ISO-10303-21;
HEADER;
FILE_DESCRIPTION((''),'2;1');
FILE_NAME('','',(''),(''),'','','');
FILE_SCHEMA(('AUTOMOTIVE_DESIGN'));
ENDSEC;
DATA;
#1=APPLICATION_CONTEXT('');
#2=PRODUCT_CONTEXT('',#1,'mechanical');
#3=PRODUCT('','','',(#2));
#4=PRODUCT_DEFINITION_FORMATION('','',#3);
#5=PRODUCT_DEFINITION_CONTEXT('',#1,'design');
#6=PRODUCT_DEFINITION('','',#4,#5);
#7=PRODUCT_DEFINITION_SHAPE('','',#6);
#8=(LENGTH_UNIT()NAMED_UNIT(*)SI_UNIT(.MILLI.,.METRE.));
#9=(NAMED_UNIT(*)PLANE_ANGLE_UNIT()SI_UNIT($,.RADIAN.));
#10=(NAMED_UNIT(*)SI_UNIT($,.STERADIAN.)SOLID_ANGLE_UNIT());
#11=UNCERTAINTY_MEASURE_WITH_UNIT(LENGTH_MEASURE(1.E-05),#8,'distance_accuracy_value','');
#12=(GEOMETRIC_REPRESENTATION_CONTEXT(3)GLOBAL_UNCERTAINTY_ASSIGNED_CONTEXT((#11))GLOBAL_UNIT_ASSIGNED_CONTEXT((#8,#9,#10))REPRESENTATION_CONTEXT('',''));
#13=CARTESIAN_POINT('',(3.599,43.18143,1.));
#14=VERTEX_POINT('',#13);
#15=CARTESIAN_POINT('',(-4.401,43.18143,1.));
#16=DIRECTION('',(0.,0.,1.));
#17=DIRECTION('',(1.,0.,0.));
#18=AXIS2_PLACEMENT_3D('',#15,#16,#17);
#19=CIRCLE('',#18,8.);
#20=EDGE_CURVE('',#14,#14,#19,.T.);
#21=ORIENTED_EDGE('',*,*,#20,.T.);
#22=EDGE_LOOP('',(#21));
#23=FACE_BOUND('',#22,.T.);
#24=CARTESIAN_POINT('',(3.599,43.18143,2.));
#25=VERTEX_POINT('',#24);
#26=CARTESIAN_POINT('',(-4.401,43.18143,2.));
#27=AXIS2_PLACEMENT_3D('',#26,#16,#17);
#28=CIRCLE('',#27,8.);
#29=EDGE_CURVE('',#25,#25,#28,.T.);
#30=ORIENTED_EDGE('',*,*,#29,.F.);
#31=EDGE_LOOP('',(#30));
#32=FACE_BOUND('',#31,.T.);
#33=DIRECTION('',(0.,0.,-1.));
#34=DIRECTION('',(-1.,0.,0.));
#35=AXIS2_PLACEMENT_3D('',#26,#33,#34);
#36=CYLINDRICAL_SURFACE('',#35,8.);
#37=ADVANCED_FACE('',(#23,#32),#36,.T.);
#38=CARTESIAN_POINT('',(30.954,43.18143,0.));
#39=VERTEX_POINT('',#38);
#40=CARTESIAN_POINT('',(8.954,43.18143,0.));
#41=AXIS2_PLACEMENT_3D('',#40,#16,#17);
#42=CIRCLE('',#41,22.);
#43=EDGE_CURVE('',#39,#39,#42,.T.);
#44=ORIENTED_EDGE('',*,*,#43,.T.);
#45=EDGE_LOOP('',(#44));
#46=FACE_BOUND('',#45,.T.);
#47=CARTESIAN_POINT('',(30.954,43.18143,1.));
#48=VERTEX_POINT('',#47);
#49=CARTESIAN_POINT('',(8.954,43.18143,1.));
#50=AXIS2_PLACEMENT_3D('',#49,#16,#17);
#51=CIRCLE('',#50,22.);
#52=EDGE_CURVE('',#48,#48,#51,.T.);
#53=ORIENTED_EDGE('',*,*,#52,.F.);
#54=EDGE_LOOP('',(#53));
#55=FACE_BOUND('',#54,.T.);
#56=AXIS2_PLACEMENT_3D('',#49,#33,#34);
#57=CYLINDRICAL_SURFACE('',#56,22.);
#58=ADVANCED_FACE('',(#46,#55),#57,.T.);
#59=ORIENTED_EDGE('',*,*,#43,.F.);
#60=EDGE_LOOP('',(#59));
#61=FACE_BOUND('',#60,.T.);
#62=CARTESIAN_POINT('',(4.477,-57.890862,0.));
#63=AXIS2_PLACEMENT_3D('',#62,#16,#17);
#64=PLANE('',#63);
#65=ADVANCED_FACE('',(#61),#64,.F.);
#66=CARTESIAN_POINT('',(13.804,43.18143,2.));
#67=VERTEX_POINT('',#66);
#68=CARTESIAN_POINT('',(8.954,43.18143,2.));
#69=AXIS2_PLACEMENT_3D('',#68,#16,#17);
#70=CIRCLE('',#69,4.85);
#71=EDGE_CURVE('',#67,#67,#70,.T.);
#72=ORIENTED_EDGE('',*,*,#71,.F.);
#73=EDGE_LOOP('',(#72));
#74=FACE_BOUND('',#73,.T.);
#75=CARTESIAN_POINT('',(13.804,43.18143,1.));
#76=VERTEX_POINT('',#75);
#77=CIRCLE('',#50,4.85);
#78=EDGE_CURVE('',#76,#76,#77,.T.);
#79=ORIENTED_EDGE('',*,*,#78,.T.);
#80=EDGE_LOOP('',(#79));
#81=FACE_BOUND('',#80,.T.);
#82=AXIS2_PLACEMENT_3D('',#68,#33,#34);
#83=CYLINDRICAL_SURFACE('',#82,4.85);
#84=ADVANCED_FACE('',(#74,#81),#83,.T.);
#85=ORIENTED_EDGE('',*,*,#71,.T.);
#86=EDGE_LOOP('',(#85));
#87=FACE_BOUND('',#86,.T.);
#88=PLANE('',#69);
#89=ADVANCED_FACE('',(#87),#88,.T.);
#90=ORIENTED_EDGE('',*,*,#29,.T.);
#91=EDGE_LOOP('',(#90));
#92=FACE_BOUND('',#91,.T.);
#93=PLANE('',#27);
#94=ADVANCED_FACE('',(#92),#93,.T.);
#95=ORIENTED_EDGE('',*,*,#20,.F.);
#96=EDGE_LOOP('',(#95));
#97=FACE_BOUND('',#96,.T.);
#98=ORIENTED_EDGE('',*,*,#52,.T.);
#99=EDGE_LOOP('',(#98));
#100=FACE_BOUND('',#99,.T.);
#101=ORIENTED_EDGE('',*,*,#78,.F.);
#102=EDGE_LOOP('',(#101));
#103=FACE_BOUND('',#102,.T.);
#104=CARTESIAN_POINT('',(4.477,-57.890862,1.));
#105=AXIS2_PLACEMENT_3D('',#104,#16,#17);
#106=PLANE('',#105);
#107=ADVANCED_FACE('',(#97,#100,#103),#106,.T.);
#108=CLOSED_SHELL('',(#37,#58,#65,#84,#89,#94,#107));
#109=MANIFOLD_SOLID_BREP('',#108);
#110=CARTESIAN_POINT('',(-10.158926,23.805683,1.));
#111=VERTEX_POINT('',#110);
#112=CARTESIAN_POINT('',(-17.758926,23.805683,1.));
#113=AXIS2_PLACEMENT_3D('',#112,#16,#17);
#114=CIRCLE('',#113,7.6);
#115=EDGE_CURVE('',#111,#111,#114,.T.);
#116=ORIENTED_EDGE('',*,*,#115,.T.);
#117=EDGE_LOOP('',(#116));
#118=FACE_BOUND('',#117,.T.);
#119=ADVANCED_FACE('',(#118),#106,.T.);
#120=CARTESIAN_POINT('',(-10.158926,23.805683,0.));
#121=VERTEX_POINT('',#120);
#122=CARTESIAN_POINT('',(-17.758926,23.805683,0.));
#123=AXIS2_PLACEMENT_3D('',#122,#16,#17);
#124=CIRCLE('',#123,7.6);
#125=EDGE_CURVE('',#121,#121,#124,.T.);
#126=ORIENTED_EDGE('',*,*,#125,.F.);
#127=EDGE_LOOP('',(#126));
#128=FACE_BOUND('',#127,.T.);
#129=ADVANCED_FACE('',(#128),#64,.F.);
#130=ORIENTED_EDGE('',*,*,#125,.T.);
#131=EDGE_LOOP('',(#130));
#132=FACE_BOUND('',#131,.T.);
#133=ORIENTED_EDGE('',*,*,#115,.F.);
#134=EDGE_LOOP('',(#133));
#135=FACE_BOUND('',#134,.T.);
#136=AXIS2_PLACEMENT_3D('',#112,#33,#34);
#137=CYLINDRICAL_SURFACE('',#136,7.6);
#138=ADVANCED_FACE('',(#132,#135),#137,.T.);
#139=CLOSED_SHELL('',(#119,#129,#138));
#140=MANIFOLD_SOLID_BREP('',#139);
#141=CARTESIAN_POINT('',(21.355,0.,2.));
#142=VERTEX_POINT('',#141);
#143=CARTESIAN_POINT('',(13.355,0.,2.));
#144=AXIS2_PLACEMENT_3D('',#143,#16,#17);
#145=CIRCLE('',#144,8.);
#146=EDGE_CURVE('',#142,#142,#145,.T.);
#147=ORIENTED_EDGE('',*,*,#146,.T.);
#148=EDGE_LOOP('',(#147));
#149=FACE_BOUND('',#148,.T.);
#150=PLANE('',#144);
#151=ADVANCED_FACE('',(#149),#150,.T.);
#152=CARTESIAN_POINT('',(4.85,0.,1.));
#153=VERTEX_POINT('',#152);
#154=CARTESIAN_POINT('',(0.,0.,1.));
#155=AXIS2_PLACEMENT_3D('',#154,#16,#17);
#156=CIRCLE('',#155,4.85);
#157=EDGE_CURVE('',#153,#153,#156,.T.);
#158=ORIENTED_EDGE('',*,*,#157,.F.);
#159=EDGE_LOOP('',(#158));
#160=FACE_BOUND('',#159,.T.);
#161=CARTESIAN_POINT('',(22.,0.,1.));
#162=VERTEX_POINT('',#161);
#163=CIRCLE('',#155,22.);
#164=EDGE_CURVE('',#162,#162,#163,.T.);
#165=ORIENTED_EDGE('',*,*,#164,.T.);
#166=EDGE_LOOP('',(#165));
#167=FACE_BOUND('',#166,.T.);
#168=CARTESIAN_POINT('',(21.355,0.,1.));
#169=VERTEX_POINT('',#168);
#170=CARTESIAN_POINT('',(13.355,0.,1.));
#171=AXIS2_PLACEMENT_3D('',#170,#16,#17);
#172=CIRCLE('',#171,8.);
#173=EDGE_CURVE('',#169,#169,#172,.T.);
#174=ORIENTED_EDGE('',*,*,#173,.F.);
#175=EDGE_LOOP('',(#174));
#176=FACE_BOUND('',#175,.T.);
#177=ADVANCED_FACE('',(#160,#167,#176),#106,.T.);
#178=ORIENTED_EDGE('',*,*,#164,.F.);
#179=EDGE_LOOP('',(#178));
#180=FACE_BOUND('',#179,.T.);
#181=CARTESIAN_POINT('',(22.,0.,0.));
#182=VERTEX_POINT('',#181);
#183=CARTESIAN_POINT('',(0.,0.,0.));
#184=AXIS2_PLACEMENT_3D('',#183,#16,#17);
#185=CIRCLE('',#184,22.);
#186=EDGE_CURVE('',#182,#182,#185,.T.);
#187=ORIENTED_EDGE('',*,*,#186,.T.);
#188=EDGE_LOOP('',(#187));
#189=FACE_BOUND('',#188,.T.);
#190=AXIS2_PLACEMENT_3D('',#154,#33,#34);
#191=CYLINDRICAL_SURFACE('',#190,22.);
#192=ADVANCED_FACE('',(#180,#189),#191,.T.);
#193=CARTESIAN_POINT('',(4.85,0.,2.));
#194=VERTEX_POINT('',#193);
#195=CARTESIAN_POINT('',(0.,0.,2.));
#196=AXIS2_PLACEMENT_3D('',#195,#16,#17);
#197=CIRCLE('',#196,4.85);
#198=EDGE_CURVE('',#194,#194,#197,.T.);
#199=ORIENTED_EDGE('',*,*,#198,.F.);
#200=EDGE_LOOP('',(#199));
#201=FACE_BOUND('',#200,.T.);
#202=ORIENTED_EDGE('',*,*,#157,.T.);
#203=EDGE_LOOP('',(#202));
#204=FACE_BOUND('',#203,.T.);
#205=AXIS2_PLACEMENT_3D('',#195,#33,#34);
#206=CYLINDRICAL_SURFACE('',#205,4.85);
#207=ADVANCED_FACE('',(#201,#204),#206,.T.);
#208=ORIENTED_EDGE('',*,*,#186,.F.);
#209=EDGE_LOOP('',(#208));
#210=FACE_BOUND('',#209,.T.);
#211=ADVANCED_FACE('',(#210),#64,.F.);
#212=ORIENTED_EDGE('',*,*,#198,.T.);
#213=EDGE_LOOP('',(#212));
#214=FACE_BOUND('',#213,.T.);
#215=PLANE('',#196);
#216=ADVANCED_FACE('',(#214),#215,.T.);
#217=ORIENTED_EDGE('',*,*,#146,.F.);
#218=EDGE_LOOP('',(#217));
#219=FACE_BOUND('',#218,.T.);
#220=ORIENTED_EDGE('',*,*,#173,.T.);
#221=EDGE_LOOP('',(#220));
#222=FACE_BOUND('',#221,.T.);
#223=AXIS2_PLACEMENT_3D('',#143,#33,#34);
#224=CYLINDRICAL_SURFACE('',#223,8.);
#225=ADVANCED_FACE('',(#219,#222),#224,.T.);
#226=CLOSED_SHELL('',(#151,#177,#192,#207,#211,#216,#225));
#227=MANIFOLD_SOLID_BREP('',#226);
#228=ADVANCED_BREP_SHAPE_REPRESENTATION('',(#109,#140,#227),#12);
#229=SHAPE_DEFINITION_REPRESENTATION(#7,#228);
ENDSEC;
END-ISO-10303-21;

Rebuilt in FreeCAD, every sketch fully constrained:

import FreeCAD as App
import Part
import Sketcher
Q = App.Units.Quantity

doc = App.newDocument("Part")
body = doc.addObject("PartDesign::Body", "Body")

# Sketch on XY plane
sketch1 = body.newObject("Sketcher::SketchObject", "Sketch")
sketch1.AttachmentSupport = (doc.getObject("XY_Plane"), [""])
sketch1.MapMode = "FlatFace"
sketch1.addGeometry(Part.Circle(App.Vector(0, 0, 0), App.Vector(0, 0, 1), 22), False)
sketch1.addConstraint([
    Sketcher.Constraint("Coincident", 0, 3, -1, 1),
    Sketcher.Constraint("Diameter", 0, Q("44 mm")),
])
pad1 = body.newObject("PartDesign::Pad", "Pad")
pad1.Profile = sketch1
pad1.Length = 1
body2 = doc.addObject("PartDesign::Body", "Body001")

# Sketch on XY plane
sketch2 = body2.newObject("Sketcher::SketchObject", "Sketch001")
sketch2.AttachmentSupport = (doc.getObject("XY_Plane001"), [""])
sketch2.MapMode = "FlatFace"
sketch2.addGeometry(Part.Circle(App.Vector(9, 43, 0), App.Vector(0, 0, 1), 22), False)
sketch2.addConstraint([
    Sketcher.Constraint("Diameter", 0, Q("44 mm")),
    Sketcher.Constraint("DistanceX", -1, 1, 0, 3, Q("8.954 mm")),
    Sketcher.Constraint("DistanceY", -1, 1, 0, 3, Q("43.18143 mm")),
])
pad2 = body2.newObject("PartDesign::Pad", "Pad001")
pad2.Profile = sketch2
pad2.Length = 1
body3 = doc.addObject("PartDesign::Body", "Body002")

# Sketch on XY plane
sketch3 = body3.newObject("Sketcher::SketchObject", "Sketch002")
sketch3.AttachmentSupport = (doc.getObject("XY_Plane002"), [""])
sketch3.MapMode = "FlatFace"
sketch3.addGeometry(Part.Circle(App.Vector(-18, 24, 0), App.Vector(0, 0, 1), 8), False)
sketch3.addConstraint([
    Sketcher.Constraint("Diameter", 0, Q("15.2 mm")),
    Sketcher.Constraint("DistanceX", 0, 3, -1, 1, Q("17.758926 mm")),
    Sketcher.Constraint("DistanceY", -1, 1, 0, 3, Q("23.805683 mm")),
])
pad3 = body3.newObject("PartDesign::Pad", "Pad002")
pad3.Profile = sketch3
pad3.Length = 1
body.AllowCompound = True
doc.recompute()

boolean = body.newObject("PartDesign::Boolean", "Boolean")
boolean.Type = "Fuse"
boolean.addObjects([body2])

# Sketch on XY plane
sketch4 = body.newObject("Sketcher::SketchObject", "Sketch003")
sketch4.AttachmentSupport = (doc.getObject("XY_Plane"), [""])
sketch4.MapMode = "FlatFace"
sketch4.AttachmentOffset = App.Placement(App.Vector(0, 0, 1), App.Rotation())
sketch4.addGeometry([
    Part.Circle(App.Vector(9, 43.2, 0), App.Vector(0, 0, 1), 4.8),
    Part.Circle(App.Vector(0, 0, 0), App.Vector(0, 0, 1), 4.8),
    Part.Circle(App.Vector(-4.4, 43.2, 0), App.Vector(0, 0, 1), 8),
    Part.Circle(App.Vector(13.4, 0, 0), App.Vector(0, 0, 1), 8),
], False)
sketch4.addConstraint([
    Sketcher.Constraint("Coincident", 1, 3, -1, 1),
    Sketcher.Constraint("Equal", 0, 1),
    Sketcher.Constraint("Equal", 2, 3),
    Sketcher.Constraint("PointOnObject", 3, 3, -1),
    Sketcher.Constraint("Horizontal", 0, 3, 2, 3),
    Sketcher.Constraint("Diameter", 2, Q("16 mm")),
    Sketcher.Constraint("Diameter", 0, Q("9.7 mm")),
    Sketcher.Constraint("DistanceX", -1, 1, 0, 3, Q("8.954 mm")),
    Sketcher.Constraint("DistanceX", 2, 3, -1, 1, Q("4.401 mm")),
    Sketcher.Constraint("DistanceX", -1, 1, 3, 3, Q("13.355 mm")),
    Sketcher.Constraint("DistanceY", -1, 1, 0, 3, Q("43.18143 mm")),
])
pad4 = body.newObject("PartDesign::Pad", "Pad003")
pad4.Profile = sketch4
pad4.Length = 1

doc.recompute()
